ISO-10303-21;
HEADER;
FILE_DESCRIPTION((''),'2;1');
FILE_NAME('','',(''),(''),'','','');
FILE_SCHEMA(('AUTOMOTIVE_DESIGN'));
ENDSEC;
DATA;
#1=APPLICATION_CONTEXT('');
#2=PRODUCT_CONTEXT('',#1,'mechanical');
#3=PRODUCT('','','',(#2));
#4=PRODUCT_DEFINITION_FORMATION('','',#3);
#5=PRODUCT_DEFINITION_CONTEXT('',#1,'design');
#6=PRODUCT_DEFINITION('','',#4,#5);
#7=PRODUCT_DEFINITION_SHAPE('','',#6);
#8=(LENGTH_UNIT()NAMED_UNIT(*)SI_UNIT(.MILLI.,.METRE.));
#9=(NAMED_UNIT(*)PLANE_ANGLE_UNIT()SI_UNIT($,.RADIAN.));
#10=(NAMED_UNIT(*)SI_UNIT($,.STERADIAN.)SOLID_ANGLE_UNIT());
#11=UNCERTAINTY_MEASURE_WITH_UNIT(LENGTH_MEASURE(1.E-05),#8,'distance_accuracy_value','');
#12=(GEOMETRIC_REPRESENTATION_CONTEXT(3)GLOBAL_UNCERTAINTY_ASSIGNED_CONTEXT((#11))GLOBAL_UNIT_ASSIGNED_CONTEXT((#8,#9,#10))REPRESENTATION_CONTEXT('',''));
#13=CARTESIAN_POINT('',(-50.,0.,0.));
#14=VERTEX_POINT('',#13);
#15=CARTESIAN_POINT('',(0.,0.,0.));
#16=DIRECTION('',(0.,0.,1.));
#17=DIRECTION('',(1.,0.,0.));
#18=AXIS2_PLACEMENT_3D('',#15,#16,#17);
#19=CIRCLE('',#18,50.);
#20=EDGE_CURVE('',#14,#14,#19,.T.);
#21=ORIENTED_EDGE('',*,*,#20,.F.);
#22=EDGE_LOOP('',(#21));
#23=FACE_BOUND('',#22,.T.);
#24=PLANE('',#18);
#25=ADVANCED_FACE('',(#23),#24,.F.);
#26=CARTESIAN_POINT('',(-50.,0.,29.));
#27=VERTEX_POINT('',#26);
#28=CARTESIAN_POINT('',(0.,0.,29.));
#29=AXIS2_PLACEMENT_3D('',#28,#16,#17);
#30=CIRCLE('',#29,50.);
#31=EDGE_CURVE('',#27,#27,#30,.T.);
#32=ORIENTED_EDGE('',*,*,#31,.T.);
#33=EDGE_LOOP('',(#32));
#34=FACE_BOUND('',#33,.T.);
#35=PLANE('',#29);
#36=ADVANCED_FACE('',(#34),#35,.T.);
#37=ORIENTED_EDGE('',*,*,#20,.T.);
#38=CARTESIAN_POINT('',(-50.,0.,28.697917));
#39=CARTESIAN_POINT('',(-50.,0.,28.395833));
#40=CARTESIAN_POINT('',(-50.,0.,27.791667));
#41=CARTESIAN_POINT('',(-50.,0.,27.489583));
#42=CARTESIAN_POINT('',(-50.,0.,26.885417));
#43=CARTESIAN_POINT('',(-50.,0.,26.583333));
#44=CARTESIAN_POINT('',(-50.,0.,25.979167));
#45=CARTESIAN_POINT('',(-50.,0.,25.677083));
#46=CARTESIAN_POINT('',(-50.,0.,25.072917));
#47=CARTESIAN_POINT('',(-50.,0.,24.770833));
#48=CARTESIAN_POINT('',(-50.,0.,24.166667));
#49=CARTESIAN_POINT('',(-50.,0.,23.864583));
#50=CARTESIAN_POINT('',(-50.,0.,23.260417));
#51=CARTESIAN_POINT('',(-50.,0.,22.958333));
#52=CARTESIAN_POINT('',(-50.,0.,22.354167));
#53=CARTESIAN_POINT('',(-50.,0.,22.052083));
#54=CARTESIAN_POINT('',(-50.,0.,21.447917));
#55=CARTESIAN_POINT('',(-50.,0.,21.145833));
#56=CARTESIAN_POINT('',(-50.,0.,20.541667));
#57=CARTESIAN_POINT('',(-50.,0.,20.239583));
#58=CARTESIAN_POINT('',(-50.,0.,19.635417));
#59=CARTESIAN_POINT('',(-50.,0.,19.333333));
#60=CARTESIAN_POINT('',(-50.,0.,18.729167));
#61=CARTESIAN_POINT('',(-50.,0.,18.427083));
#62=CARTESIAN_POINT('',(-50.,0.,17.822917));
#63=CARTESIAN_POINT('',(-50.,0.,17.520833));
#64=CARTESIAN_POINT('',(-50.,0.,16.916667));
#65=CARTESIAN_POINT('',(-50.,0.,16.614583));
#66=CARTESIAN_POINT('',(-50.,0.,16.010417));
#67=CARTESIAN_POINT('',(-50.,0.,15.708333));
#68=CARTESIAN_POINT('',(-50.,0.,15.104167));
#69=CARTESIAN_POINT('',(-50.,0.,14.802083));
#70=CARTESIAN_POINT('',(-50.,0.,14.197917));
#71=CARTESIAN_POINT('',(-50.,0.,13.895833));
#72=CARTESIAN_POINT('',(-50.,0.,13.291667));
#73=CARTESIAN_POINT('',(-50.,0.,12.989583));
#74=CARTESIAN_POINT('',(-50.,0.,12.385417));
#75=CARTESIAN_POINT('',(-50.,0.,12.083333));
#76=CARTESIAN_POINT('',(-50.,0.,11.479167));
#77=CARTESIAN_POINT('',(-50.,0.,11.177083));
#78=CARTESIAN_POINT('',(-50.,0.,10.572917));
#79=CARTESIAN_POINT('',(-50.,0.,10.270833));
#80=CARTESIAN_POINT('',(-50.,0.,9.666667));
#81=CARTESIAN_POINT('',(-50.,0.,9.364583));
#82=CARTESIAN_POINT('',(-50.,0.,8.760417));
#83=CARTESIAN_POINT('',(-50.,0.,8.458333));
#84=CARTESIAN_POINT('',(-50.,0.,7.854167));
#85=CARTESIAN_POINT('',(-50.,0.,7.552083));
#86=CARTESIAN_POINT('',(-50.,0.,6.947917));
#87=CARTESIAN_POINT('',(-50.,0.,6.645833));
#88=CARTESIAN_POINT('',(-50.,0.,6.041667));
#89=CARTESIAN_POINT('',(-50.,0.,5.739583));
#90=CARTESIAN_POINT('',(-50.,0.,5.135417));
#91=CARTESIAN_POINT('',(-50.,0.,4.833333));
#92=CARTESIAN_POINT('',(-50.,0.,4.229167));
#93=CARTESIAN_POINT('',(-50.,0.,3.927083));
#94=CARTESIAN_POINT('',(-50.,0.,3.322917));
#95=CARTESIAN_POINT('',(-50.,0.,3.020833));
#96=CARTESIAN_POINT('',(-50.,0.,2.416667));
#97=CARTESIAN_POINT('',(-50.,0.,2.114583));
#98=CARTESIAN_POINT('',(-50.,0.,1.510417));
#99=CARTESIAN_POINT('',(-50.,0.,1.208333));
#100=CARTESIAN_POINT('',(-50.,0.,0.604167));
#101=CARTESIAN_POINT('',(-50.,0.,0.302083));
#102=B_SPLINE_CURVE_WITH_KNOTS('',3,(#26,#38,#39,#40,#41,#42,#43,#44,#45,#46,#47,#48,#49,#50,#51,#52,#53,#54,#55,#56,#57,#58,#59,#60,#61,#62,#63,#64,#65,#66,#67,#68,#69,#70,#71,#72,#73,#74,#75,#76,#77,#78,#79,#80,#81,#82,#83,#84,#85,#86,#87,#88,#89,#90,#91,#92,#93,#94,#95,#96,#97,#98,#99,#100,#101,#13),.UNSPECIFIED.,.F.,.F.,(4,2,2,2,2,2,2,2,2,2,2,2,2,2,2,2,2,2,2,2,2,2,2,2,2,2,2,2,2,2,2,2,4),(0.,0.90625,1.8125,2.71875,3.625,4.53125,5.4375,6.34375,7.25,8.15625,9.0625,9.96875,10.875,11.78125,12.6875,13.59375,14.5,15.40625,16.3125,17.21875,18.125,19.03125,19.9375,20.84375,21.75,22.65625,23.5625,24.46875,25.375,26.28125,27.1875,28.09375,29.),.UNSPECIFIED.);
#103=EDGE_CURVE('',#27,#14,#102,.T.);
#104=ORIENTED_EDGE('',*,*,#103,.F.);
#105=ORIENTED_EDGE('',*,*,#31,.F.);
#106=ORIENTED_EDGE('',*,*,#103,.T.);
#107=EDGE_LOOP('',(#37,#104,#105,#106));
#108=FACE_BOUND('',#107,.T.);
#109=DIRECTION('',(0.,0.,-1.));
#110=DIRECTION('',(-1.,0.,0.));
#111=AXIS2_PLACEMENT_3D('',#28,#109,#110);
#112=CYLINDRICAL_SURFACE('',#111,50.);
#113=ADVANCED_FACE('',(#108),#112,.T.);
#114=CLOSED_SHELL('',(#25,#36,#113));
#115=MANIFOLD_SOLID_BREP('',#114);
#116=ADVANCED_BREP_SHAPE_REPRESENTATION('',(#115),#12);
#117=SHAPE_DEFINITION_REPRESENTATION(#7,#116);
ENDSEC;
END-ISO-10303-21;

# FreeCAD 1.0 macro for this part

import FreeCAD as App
import Part
import Sketcher
from FreeCAD import Vector

doc = App.newDocument("Part")
body = doc.addObject("PartDesign::Body", "Body")

# Sketch on XY plane
sketch1 = doc.addObject("Sketcher::SketchObject", "Sketch")
body.addObject(sketch1)
sketch1.AttachmentSupport = (doc.XY_Plane, [""])
sketch1.MapMode = "FlatFace"
sketch1.addGeometry(Part.Circle(Vector(0, 0, 0), Vector(0, 0, 1), 50), False)
sketch1.addConstraint(Sketcher.Constraint("Coincident", 0, 3, -1, 1))
sketch1.addConstraint(Sketcher.Constraint("Diameter", 0, 100.0))
pad1 = doc.addObject("PartDesign::Pad", "Pad")
body.addObject(pad1)
pad1.Profile = sketch1
pad1.Length = 29

doc.recompute()
